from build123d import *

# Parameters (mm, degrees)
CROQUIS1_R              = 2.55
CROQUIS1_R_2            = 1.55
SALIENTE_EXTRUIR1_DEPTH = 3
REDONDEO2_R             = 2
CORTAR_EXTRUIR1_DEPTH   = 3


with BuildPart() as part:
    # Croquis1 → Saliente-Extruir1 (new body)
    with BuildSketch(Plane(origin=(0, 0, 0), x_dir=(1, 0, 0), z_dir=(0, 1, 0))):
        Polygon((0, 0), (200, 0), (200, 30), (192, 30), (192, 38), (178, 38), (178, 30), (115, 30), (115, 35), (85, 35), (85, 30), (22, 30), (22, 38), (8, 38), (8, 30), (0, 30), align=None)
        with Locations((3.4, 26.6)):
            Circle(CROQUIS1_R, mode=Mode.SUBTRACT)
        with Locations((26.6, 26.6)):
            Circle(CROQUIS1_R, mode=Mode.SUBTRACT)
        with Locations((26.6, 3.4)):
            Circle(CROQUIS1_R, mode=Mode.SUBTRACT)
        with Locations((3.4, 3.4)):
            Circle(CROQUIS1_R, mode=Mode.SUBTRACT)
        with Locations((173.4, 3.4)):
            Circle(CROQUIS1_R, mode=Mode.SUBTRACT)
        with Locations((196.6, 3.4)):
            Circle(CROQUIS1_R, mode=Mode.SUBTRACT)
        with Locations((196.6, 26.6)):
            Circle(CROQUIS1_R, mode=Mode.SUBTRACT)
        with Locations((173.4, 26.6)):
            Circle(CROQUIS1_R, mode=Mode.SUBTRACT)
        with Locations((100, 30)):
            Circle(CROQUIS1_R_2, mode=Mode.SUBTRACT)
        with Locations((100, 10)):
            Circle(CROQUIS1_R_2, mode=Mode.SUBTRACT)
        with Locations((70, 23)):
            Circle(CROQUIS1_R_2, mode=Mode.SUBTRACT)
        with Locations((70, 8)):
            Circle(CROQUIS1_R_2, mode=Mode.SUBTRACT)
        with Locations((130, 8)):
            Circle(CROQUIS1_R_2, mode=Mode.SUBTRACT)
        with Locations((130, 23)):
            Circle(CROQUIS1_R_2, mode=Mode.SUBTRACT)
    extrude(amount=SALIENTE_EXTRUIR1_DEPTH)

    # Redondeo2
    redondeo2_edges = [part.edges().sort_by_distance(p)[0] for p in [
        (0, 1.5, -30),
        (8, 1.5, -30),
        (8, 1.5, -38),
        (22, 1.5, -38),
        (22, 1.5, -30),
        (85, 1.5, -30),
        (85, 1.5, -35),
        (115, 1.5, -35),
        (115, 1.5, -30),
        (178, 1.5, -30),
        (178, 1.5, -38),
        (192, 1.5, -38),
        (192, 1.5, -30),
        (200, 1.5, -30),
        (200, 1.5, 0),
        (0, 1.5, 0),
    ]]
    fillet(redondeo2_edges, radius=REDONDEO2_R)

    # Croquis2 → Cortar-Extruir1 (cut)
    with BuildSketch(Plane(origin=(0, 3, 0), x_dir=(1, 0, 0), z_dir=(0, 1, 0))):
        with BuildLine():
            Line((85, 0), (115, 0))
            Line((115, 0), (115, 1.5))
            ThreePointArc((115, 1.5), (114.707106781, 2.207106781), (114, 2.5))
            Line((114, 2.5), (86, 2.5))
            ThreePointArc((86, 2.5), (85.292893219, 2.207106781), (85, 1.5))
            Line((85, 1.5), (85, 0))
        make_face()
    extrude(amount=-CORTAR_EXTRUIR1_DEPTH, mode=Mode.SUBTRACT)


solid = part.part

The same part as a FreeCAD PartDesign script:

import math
import FreeCAD as App
import Part
import Sketcher
from FreeCAD import Vector
Q = App.Units.Quantity


def edges_at(feature, points):
    """Names of the edges that pass closest to the given points."""
    edges = feature.Shape.Edges
    near = lambda p: min(range(len(edges)), key=lambda i: edges[i].distToShape(Part.Vertex(*p))[0])
    return sorted({f"Edge{near(p) + 1}" for p in points})

doc = App.newDocument("Part")
body = doc.addObject("PartDesign::Body", "Body")

sketch1 = body.newObject("Sketcher::SketchObject", "Sketch")
sketch1.AttachmentSupport = (doc.getObject("XZ_Plane"), [""])
sketch1.MapMode = "FlatFace"
sketch1.addGeometry(Part.LineSegment(Vector(0, 0, 0), Vector(200, 0, 0)), False)
sketch1.addGeometry(Part.LineSegment(Vector(200, 0, 0), Vector(200, -30, 0)), False)
sketch1.addGeometry(Part.LineSegment(Vector(200, -30, 0), Vector(192, -30, 0)), False)
sketch1.addGeometry(Part.LineSegment(Vector(192, -30, 0), Vector(192, -38, 0)), False)
sketch1.addGeometry(Part.LineSegment(Vector(192, -38, 0), Vector(178, -38, 0)), False)
sketch1.addGeometry(Part.LineSegment(Vector(178, -38, 0), Vector(178, -30, 0)), False)
sketch1.addGeometry(Part.LineSegment(Vector(178, -30, 0), Vector(115, -30, 0)), False)
sketch1.addGeometry(Part.LineSegment(Vector(115, -30, 0), Vector(115, -35, 0)), False)
sketch1.addGeometry(Part.LineSegment(Vector(115, -35, 0), Vector(85, -35, 0)), False)
sketch1.addGeometry(Part.LineSegment(Vector(85, -35, 0), Vector(85, -30, 0)), False)
sketch1.addGeometry(Part.LineSegment(Vector(85, -30, 0), Vector(22, -30, 0)), False)
sketch1.addGeometry(Part.LineSegment(Vector(22, -30, 0), Vector(22, -38, 0)), False)
sketch1.addGeometry(Part.LineSegment(Vector(22, -38, 0), Vector(8, -38, 0)), False)
sketch1.addGeometry(Part.LineSegment(Vector(8, -38, 0), Vector(8, -30, 0)), False)
sketch1.addGeometry(Part.LineSegment(Vector(8, -30, 0), Vector(0, -30, 0)), False)
sketch1.addGeometry(Part.LineSegment(Vector(0, -30, 0), Vector(0, 0, 0)), False)
sketch1.addGeometry(Part.Circle(Vector(3.4, -3.4, 0), Vector(0, 0, 1), 2.5), False)
sketch1.addGeometry(Part.Circle(Vector(26.6, -3.4, 0), Vector(0, 0, 1), 2.5), False)
sketch1.addGeometry(Part.Circle(Vector(70, -8, 0), Vector(0, 0, 1), 1.6), False)
sketch1.addGeometry(Part.Circle(Vector(100, -10, 0), Vector(0, 0, 1), 1.6), False)
sketch1.addGeometry(Part.Circle(Vector(130, -8, 0), Vector(0, 0, 1), 1.6), False)
sketch1.addGeometry(Part.Circle(Vector(173.4, -3.4, 0), Vector(0, 0, 1), 2.5), False)
sketch1.addGeometry(Part.Circle(Vector(196.6, -3.4, 0), Vector(0, 0, 1), 2.5), False)
sketch1.addGeometry(Part.Circle(Vector(70, -23, 0), Vector(0, 0, 1), 1.6), False)
sketch1.addGeometry(Part.Circle(Vector(3.4, -26.6, 0), Vector(0, 0, 1), 2.5), False)
sketch1.addGeometry(Part.Circle(Vector(26.6, -26.6, 0), Vector(0, 0, 1), 2.5), False)
sketch1.addGeometry(Part.Circle(Vector(100, -30, 0), Vector(0, 0, 1), 1.6), False)
sketch1.addGeometry(Part.Circle(Vector(130, -23, 0), Vector(0, 0, 1), 1.6), False)
sketch1.addGeometry(Part.Circle(Vector(173.4, -26.6, 0), Vector(0, 0, 1), 2.5), False)
sketch1.addGeometry(Part.Circle(Vector(196.6, -26.6, 0), Vector(0, 0, 1), 2.5), False)
sketch1.addConstraint(Sketcher.Constraint("Coincident", 0, 2, 1, 1))
sketch1.addConstraint(Sketcher.Constraint("Coincident", 1, 2, 2, 1))
sketch1.addConstraint(Sketcher.Constraint("Coincident", 2, 2, 3, 1))
sketch1.addConstraint(Sketcher.Constraint("Coincident", 3, 2, 4, 1))
sketch1.addConstraint(Sketcher.Constraint("Coincident", 4, 2, 5, 1))
sketch1.addConstraint(Sketcher.Constraint("Coincident", 5, 2, 6, 1))
sketch1.addConstraint(Sketcher.Constraint("Coincident", 6, 2, 7, 1))
sketch1.addConstraint(Sketcher.Constraint("Coincident", 7, 2, 8, 1))
sketch1.addConstraint(Sketcher.Constraint("Coincident", 8, 2, 9, 1))
sketch1.addConstraint(Sketcher.Constraint("Coincident", 9, 2, 10, 1))
sketch1.addConstraint(Sketcher.Constraint("Coincident", 10, 2, 11, 1))
sketch1.addConstraint(Sketcher.Constraint("Coincident", 11, 2, 12, 1))
sketch1.addConstraint(Sketcher.Constraint("Coincident", 12, 2, 13, 1))
sketch1.addConstraint(Sketcher.Constraint("Coincident", 13, 2, 14, 1))
sketch1.addConstraint(Sketcher.Constraint("Coincident", 14, 2, 15, 1))
sketch1.addConstraint(Sketcher.Constraint("Coincident", 15, 2, 0, 1))
sketch1.addConstraint(Sketcher.Constraint("Horizontal", 0))
sketch1.addConstraint(Sketcher.Constraint("Vertical", 1))
sketch1.addConstraint(Sketcher.Constraint("Horizontal", 2))
sketch1.addConstraint(Sketcher.Constraint("Vertical", 3))
sketch1.addConstraint(Sketcher.Constraint("Horizontal", 4))
sketch1.addConstraint(Sketcher.Constraint("Vertical", 5))
sketch1.addConstraint(Sketcher.Constraint("Horizontal", 6))
sketch1.addConstraint(Sketcher.Constraint("Vertical", 7))
sketch1.addConstraint(Sketcher.Constraint("Horizontal", 8))
sketch1.addConstraint(Sketcher.Constraint("Vertical", 9))
sketch1.addConstraint(Sketcher.Constraint("Horizontal", 10))
sketch1.addConstraint(Sketcher.Constraint("Vertical", 11))
sketch1.addConstraint(Sketcher.Constraint("Horizontal", 12))
sketch1.addConstraint(Sketcher.Constraint("Vertical", 13))
sketch1.addConstraint(Sketcher.Constraint("Horizontal", 14))
sketch1.addConstraint(Sketcher.Constraint("Vertical", 15))
sketch1.addConstraint(Sketcher.Constraint("Coincident", 15, 2, -1, 1))
sketch1.addConstraint(Sketcher.Constraint("Equal", 16, 17))
sketch1.addConstraint(Sketcher.Constraint("Equal", 18, 19))
sketch1.addConstraint(Sketcher.Constraint("Equal", 19, 20))
sketch1.addConstraint(Sketcher.Constraint("Equal", 17, 21))
sketch1.addConstraint(Sketcher.Constraint("Equal", 21, 22))
sketch1.addConstraint(Sketcher.Constraint("Equal", 20, 23))
sketch1.addConstraint(Sketcher.Constraint("Equal", 22, 24))
sketch1.addConstraint(Sketcher.Constraint("Equal", 24, 25))
sketch1.addConstraint(Sketcher.Constraint("Equal", 23, 26))
sketch1.addConstraint(Sketcher.Constraint("Equal", 26, 27))
sketch1.addConstraint(Sketcher.Constraint("Equal", 25, 28))
sketch1.addConstraint(Sketcher.Constraint("Equal", 28, 29))
sketch1.addConstraint(Sketcher.Constraint("Horizontal", 16, 3, 17, 3))
sketch1.addConstraint(Sketcher.Constraint("Horizontal", 18, 3, 20, 3))
sketch1.addConstraint(Sketcher.Constraint("Horizontal", 17, 3, 21, 3))
sketch1.addConstraint(Sketcher.Constraint("Horizontal", 21, 3, 22, 3))
sketch1.addConstraint(Sketcher.Constraint("Horizontal", 24, 3, 25, 3))
sketch1.addConstraint(Sketcher.Constraint("Horizontal", 23, 3, 27, 3))
sketch1.addConstraint(Sketcher.Constraint("Horizontal", 25, 3, 28, 3))
sketch1.addConstraint(Sketcher.Constraint("Horizontal", 28, 3, 29, 3))
sketch1.addConstraint(Sketcher.Constraint("Horizontal", 26, 3, 1, 2))
sketch1.addConstraint(Sketcher.Constraint("Horizontal", 2, 2, 5, 2))
sketch1.addConstraint(Sketcher.Constraint("Horizontal", 6, 2, 9, 2))
sketch1.addConstraint(Sketcher.Constraint("Horizontal", 4, 2, 11, 2))
sketch1.addConstraint(Sketcher.Constraint("Horizontal", 10, 2, 13, 2))
sketch1.addConstraint(Sketcher.Constraint("Vertical", 18, 3, 23, 3))
sketch1.addConstraint(Sketcher.Constraint("Vertical", 16, 3, 24, 3))
sketch1.addConstraint(Sketcher.Constraint("Vertical", 17, 3, 25, 3))
sketch1.addConstraint(Sketcher.Constraint("Vertical", 19, 3, 26, 3))
sketch1.addConstraint(Sketcher.Constraint("Vertical", 20, 3, 27, 3))
sketch1.addConstraint(Sketcher.Constraint("Vertical", 21, 3, 28, 3))
sketch1.addConstraint(Sketcher.Constraint("Vertical", 22, 3, 29, 3))
sketch1.addConstraint(Sketcher.Constraint("Equal", 6, 10))
sketch1.addConstraint(Sketcher.Constraint("Equal", 4, 12))
sketch1.addConstraint(Sketcher.Constraint("Equal", 2, 14))
sketch1.addConstraint(Sketcher.Constraint("Equal", 8, 1))
sketch1.addConstraint(Sketcher.Constraint("Equal", 14, 3))
sketch1.addConstraint(Sketcher.Constraint("Diameter", 16, Q("5.1 mm")))
sketch1.addConstraint(Sketcher.Constraint("Diameter", 18, Q("3.1 mm")))
sketch1.addConstraint(Sketcher.Constraint("DistanceX", 0, 1, 0, 2, Q("200 mm")))
sketch1.addConstraint(Sketcher.Constraint("DistanceX", 2, 2, 2, 1, Q("8 mm")))
sketch1.addConstraint(Sketcher.Constraint("DistanceX", 4, 2, 4, 1, Q("14 mm")))
sketch1.addConstraint(Sketcher.Constraint("DistanceX", 6, 2, 6, 1, Q("63 mm")))
sketch1.addConstraint(Sketcher.Constraint("DistanceY", 7, 2, 7, 1, Q("5 mm")))
sketch1.addConstraint(Sketcher.Constraint("DistanceX", -1, 1, 18, 3, Q("70 mm")))
sketch1.addConstraint(Sketcher.Constraint("DistanceY", 18, 3, -1, 1, Q("8 mm")))
sketch1.addConstraint(Sketcher.Constraint("DistanceX", -1, 1, 19, 3, Q("100 mm")))
sketch1.addConstraint(Sketcher.Constraint("DistanceY", 19, 3, -1, 1, Q("10 mm")))
sketch1.addConstraint(Sketcher.Constraint("DistanceX", -1, 1, 20, 3, Q("130 mm")))
sketch1.addConstraint(Sketcher.Constraint("DistanceY", 23, 3, -1, 1, Q("23 mm")))
sketch1.addConstraint(Sketcher.Constraint("DistanceX", 16, 3, 21, 3, Q("170 mm")))
sketch1.addConstraint(Sketcher.Constraint("DistanceX", 17, 3, 22, 3, Q("170 mm")))
sketch1.addConstraint(Sketcher.Constraint("DistanceX", -1, 1, 16, 3, Q("3.4 mm")))
sketch1.addConstraint(Sketcher.Constraint("DistanceY", 16, 3, -1, 1, Q("3.4 mm")))
sketch1.addConstraint(Sketcher.Constraint("DistanceX", -1, 1, 17, 3, Q("26.6 mm")))
sketch1.addConstraint(Sketcher.Constraint("DistanceY", 24, 3, -1, 1, Q("26.6 mm")))
pad1 = body.newObject("PartDesign::Pad", "Pad")
pad1.Profile = sketch1
pad1.Length = 3
pad1.Reversed = True
doc.recompute()

fillet = body.newObject("PartDesign::Fillet", "Fillet")
fillet.Base = (pad1, edges_at(pad1, [
    (0, 1.5, -30),
    (8, 1.5, -30),
    (8, 1.5, -38),
    (22, 1.5, -38),
    (22, 1.5, -30),
    (85, 1.5, -30),
    (85, 1.5, -35),
    (115, 1.5, -35),
    (115, 1.5, -30),
    (178, 1.5, -30),
    (178, 1.5, -38),
    (192, 1.5, -38),
    (192, 1.5, -30),
    (200, 1.5, -30),
    (200, 1.5, 0),
    (0, 1.5, 0),
]))
fillet.Radius = 2

sketch2 = body.newObject("Sketcher::SketchObject", "Sketch001")
sketch2.AttachmentSupport = (doc.getObject("XZ_Plane"), [""])
sketch2.MapMode = "FlatFace"
sketch2.AttachmentOffset = App.Placement(Vector(0, 0, -3), App.Rotation())
sketch2.addGeometry(Part.LineSegment(Vector(85, 0, 0), Vector(115, 0, 0)), False)
sketch2.addGeometry(Part.LineSegment(Vector(115, 0, 0), Vector(115, -1.5, 0)), False)
sketch2.addGeometry(Part.ArcOfCircle(Part.Circle(Vector(114, -1.5, 0), Vector(0, 0, 1), 1), math.radians(-90), math.radians(0)), False)
sketch2.addGeometry(Part.LineSegment(Vector(114, -2.5, 0), Vector(86, -2.5, 0)), False)
sketch2.addGeometry(Part.ArcOfCircle(Part.Circle(Vector(86, -1.5, 0), Vector(0, 0, 1), 1), math.radians(-180), math.radians(-90)), False)
sketch2.addGeometry(Part.LineSegment(Vector(85, -1.5, 0), Vector(85, 0, 0)), False)
sketch2.addConstraint(Sketcher.Constraint("Coincident", 0, 2, 1, 1))
sketch2.addConstraint(Sketcher.Constraint("Tangent", 1, 2, 2, 2))
sketch2.addConstraint(Sketcher.Constraint("Tangent", 2, 1, 3, 1))
sketch2.addConstraint(Sketcher.Constraint("Tangent", 3, 2, 4, 2))
sketch2.addConstraint(Sketcher.Constraint("Tangent", 4, 1, 5, 1))
sketch2.addConstraint(Sketcher.Constraint("Coincident", 5, 2, 0, 1))
sketch2.addConstraint(Sketcher.Constraint("Horizontal", 0))
sketch2.addConstraint(Sketcher.Constraint("Vertical", 1))
sketch2.addConstraint(Sketcher.Constraint("Horizontal", 3))
sketch2.addConstraint(Sketcher.Constraint("Vertical", 5))
sketch2.addConstraint(Sketcher.Constraint("Equal", 2, 4))
sketch2.addConstraint(Sketcher.Constraint("PointOnObject", 0, 2, -1))
sketch2.addConstraint(Sketcher.Constraint("Radius", 2, Q("1 mm")))
sketch2.addConstraint(Sketcher.Constraint("DistanceX", 0, 1, 0, 2, Q("30 mm")))
sketch2.addConstraint(Sketcher.Constraint("DistanceY", 1, 2, 1, 1, Q("1.5 mm")))
sketch2.addConstraint(Sketcher.Constraint("DistanceX", -1, 1, 2, 3, Q("114 mm")))
pocket1 = body.newObject("PartDesign::Pocket", "Pocket")
pocket1.Profile = sketch2
pocket1.Length = 3
pocket1.Reversed = True

doc.recompute()
